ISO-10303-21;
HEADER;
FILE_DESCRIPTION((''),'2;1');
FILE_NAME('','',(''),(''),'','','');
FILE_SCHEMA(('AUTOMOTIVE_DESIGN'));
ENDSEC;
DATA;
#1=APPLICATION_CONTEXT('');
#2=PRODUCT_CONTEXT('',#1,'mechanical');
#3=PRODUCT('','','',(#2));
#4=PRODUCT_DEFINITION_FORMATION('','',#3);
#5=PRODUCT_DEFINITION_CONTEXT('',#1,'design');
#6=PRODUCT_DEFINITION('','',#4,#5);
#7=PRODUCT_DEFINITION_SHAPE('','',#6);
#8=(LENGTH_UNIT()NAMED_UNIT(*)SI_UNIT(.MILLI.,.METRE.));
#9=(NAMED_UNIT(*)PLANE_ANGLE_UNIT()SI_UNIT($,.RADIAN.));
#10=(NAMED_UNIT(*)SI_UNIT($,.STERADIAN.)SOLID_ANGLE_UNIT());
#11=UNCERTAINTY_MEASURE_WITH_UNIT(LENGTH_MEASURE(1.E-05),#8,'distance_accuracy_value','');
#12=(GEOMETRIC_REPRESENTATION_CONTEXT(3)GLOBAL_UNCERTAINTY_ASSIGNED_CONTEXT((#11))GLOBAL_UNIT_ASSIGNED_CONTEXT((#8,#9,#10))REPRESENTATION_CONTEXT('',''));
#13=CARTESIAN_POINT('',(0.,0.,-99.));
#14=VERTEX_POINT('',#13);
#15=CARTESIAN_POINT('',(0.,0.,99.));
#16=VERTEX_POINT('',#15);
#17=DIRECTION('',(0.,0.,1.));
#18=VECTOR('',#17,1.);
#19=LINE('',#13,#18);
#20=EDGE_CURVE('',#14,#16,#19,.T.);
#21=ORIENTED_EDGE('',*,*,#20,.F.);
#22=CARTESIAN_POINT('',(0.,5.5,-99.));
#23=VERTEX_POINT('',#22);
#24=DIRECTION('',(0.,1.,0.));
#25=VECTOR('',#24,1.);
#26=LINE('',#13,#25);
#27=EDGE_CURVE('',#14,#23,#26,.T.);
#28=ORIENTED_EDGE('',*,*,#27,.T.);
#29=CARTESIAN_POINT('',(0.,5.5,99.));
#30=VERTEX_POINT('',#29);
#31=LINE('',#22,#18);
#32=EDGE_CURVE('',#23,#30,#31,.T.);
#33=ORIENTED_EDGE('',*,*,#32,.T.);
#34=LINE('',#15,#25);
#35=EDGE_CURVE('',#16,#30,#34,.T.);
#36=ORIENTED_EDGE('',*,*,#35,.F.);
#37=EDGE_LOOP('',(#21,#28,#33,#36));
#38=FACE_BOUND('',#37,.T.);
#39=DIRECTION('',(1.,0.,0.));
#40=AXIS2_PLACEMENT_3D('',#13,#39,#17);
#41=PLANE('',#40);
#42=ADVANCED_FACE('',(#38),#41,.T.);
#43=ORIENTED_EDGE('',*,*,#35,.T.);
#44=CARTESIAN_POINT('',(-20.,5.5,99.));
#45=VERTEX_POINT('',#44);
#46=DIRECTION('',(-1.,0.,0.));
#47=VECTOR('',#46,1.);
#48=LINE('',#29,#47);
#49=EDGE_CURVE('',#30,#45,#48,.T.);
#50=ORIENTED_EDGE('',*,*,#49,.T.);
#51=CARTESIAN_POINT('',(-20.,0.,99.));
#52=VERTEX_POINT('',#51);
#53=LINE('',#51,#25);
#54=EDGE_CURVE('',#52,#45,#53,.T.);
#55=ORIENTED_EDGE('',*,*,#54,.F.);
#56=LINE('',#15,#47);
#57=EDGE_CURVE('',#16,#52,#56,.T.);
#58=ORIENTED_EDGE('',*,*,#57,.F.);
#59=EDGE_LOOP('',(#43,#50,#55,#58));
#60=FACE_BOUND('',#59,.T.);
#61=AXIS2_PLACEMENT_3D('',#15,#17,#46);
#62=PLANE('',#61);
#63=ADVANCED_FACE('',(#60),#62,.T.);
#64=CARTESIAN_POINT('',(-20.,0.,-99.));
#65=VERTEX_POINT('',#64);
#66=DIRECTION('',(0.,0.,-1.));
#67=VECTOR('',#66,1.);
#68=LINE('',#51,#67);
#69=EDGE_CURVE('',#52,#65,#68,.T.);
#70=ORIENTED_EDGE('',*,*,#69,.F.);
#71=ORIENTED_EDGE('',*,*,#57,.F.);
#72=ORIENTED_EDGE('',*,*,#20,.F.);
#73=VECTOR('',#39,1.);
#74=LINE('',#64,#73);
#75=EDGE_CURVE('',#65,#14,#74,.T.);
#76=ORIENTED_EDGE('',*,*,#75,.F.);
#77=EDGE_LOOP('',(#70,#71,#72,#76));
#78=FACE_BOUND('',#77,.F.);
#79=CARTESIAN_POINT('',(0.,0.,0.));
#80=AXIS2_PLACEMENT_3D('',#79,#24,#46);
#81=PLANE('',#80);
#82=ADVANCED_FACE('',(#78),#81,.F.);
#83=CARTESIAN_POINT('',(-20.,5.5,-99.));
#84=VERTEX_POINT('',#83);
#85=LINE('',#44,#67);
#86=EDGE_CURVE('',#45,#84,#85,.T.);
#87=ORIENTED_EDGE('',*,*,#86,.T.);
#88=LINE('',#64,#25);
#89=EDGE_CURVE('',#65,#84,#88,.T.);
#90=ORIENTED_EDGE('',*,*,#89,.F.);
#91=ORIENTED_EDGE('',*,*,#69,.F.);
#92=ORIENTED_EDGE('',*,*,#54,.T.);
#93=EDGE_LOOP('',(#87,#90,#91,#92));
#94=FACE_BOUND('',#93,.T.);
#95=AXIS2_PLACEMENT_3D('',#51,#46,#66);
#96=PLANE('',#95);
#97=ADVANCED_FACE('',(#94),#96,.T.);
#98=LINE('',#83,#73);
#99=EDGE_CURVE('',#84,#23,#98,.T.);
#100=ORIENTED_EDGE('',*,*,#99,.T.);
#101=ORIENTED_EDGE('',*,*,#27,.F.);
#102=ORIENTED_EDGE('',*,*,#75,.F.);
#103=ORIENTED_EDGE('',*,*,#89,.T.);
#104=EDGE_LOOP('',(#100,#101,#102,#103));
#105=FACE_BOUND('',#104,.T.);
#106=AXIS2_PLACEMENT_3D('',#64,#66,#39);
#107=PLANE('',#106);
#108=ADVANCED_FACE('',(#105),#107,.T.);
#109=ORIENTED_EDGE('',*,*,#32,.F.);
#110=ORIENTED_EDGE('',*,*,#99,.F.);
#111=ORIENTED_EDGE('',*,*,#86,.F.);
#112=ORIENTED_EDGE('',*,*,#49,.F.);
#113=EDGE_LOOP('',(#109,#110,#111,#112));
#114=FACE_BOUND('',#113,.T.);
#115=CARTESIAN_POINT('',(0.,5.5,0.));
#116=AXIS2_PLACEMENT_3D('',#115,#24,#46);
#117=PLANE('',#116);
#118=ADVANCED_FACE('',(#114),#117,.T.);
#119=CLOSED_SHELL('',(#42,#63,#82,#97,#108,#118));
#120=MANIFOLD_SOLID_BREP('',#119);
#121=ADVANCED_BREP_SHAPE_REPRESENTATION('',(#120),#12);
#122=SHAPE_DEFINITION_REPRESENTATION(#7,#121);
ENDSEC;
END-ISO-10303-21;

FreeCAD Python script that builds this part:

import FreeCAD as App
import Part
import Sketcher
from FreeCAD import Vector
Q = App.Units.Quantity


def add_polygon(sketch, points):
    """Adds a closed chain of lines whose ends are joined by coincident constraints."""
    first, n = sketch.GeometryCount, len(points)
    for a, b in zip(points, points[1:] + points[:1]):
        sketch.addGeometry(Part.LineSegment(App.Vector(*a, 0), App.Vector(*b, 0)), False)
    for i in range(n):
        sketch.addConstraint(Sketcher.Constraint("Coincident", first + i, 2, first + (i + 1) % n, 1))

doc = App.newDocument("Part")
body = doc.addObject("PartDesign::Body", "Body")

# Sketch on XZ plane
sketch1 = body.newObject("Sketcher::SketchObject", "Sketch")
sketch1.AttachmentSupport = (doc.getObject("XZ_Plane"), [""])
sketch1.MapMode = "FlatFace"
add_polygon(sketch1, [(-20, 99), (0, 99), (0, -99), (-20, -99)])  # lines 0-3
sketch1.addConstraint(Sketcher.Constraint("Horizontal", 0))
sketch1.addConstraint(Sketcher.Constraint("Vertical", 1))
sketch1.addConstraint(Sketcher.Constraint("Horizontal", 2))
sketch1.addConstraint(Sketcher.Constraint("Vertical", 3))
sketch1.addConstraint(Sketcher.Constraint("Symmetric", 0, 2, 1, 2, -1, 1))
sketch1.addConstraint(Sketcher.Constraint("DistanceX", 0, 1, 0, 2, Q("20 mm")))
sketch1.addConstraint(Sketcher.Constraint("DistanceY", 1, 2, 1, 1, Q("198 mm")))
pad1 = body.newObject("PartDesign::Pad", "Pad")
pad1.Profile = sketch1
pad1.Length = 5.5
pad1.Reversed = True

doc.recompute()
